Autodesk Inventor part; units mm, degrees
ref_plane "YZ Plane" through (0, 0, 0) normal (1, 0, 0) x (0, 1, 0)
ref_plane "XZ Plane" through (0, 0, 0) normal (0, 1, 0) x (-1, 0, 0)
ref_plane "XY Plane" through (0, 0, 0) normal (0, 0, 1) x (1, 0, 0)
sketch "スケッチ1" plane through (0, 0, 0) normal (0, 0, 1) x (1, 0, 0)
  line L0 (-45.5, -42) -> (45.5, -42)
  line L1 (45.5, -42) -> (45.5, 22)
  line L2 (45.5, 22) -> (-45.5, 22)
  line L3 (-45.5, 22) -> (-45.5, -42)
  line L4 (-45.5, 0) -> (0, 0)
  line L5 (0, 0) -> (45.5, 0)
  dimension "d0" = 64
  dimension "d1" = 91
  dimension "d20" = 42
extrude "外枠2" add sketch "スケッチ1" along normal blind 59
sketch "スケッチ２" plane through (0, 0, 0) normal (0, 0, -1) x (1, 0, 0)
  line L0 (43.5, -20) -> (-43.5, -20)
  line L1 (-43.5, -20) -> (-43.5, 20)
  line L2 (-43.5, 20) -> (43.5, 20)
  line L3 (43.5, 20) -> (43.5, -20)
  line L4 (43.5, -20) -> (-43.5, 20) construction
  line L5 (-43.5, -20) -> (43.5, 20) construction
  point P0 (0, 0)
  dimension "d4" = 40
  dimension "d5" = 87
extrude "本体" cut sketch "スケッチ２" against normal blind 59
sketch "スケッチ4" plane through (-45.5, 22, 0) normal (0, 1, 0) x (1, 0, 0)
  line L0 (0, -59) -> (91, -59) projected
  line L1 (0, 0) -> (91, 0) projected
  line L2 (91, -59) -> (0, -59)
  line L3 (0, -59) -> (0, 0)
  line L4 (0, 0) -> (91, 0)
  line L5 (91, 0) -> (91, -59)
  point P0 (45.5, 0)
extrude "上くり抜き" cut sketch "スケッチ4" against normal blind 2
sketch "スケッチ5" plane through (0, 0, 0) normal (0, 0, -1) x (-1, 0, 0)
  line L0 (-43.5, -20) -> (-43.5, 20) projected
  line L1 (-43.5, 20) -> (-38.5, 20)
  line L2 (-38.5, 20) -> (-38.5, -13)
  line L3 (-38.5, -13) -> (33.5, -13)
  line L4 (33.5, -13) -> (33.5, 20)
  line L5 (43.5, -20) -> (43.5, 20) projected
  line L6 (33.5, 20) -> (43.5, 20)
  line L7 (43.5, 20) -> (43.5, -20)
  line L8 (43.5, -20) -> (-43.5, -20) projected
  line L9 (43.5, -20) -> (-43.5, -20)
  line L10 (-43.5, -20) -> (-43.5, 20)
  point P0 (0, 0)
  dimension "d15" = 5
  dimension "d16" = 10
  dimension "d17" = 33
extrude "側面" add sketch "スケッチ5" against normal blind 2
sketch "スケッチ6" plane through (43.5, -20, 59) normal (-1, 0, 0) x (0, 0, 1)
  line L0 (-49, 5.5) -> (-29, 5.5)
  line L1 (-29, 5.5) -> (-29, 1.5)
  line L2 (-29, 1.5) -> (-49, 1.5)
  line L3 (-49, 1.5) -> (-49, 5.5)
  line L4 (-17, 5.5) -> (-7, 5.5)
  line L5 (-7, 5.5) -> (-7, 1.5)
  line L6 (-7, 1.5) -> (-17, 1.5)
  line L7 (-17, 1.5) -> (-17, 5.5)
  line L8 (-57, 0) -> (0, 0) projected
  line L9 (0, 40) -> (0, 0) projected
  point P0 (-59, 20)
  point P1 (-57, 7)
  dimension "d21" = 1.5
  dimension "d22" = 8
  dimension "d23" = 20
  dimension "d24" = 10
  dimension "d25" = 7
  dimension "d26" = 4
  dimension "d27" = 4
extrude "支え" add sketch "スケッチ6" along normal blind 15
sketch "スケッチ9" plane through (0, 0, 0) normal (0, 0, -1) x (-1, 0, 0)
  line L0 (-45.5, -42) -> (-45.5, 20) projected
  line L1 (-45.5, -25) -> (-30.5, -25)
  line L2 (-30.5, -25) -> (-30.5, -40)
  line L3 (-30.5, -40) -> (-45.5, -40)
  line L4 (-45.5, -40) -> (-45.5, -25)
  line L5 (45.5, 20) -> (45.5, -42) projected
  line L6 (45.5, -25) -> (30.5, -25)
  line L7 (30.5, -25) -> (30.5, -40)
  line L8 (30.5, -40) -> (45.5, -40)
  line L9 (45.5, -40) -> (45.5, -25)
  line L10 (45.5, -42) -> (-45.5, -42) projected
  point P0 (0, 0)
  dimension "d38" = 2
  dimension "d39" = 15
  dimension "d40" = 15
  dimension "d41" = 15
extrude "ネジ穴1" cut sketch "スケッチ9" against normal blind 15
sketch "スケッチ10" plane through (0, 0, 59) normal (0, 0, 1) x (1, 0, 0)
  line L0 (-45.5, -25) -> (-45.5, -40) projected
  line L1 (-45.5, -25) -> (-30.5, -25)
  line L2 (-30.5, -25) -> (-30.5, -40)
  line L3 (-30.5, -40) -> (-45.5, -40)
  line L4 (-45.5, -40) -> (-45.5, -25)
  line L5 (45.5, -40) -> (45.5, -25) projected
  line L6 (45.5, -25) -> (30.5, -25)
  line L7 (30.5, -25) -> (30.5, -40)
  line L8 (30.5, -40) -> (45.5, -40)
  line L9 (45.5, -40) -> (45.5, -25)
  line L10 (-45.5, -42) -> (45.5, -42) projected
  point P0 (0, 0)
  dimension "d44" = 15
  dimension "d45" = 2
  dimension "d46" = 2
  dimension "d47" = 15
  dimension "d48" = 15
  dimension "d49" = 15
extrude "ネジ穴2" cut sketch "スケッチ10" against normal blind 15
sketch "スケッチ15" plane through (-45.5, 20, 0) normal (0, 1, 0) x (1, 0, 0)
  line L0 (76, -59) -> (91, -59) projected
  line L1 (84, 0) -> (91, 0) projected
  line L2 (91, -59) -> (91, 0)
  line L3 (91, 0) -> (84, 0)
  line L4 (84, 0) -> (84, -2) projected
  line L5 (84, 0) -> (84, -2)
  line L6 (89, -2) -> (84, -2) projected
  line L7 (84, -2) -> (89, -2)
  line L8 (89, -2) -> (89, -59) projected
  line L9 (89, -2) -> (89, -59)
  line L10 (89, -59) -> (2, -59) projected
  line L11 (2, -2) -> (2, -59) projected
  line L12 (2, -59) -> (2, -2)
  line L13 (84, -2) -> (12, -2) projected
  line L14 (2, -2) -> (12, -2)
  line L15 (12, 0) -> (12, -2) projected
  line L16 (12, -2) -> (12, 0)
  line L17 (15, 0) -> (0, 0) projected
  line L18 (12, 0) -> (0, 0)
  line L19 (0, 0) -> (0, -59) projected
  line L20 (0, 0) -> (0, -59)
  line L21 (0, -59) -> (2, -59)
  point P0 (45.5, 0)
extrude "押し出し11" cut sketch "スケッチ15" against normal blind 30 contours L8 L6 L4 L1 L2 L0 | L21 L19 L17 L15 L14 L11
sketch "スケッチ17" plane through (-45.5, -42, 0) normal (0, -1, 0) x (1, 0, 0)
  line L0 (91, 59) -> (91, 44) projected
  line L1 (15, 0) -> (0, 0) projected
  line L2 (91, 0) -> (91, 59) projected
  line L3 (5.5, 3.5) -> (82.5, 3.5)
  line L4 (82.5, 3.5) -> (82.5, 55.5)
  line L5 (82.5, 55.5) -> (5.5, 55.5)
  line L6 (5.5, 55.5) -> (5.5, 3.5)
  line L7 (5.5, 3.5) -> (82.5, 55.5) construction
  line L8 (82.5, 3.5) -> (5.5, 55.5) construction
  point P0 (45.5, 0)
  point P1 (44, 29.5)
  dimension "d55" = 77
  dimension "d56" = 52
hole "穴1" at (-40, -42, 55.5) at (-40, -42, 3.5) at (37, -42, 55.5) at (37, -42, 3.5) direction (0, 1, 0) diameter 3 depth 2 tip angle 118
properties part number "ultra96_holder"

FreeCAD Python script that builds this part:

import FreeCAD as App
import Part
import Sketcher
from FreeCAD import Vector
Q = App.Units.Quantity

doc = App.newDocument("Part")
params = doc.addObject("Spreadsheet::Sheet", "Params")
for row, (alias, value) in enumerate([
    ("sketch1_width", "91 mm"),
    ("sketch1_height", "64 mm"),
    ("pad1_length", "59 mm"),
    ("sketch2_width", "87 mm"),
    ("sketch2_height", "40 mm"),
    ("pocket1_length", "59 mm"),
    ("sketch3_width", "91 mm"),
    ("sketch3_height", "59 mm"),
    ("pocket2_length", "2 mm"),
    ("sketch4_width", "10 mm"),
    ("sketch4_width2", "5 mm"),
    ("sketch4_height", "33 mm"),
    ("sketch4_width3", "87 mm"),
    ("sketch4_height2", "40 mm"),
    ("pad2_length", "2 mm"),
    ("sketch5_width", "4 mm"),
    ("sketch5_height", "20 mm"),
    ("sketch5_height2", "10 mm"),
    ("pad3_length", "15 mm"),
    ("sketch6_width", "15 mm"),
    ("pocket3_length", "15 mm"),
    ("sketch7_width", "15 mm"),
    ("pocket4_length", "15 mm"),
    ("sketch8_width", "2 mm"),
    ("sketch8_width2", "7 mm"),
    ("sketch8_width3", "10 mm"),
    ("sketch8_height", "57 mm"),
    ("pocket5_length", "30 mm"),
    ("sketch9_diameter", "3 mm"),
    ("hole_diameter", "3 mm"),
    ("hole_depth", "2 mm"),
], start=1):
    params.set(f"A{row}", alias)
    params.set(f"B{row}", "=" + value)
    params.setAlias(f"B{row}", alias)

body = doc.addObject("PartDesign::Body", "Body")

# Sketch on XY plane
sketch1 = body.newObject("Sketcher::SketchObject", "Sketch")
sketch1.AttachmentSupport = (doc.getObject("XY_Plane"), [""])
sketch1.MapMode = "FlatFace"
sketch1.addGeometry([
    Part.LineSegment(Vector(-46, -42, 0), Vector(46, -42, 0)),
    Part.LineSegment(Vector(46, -42, 0), Vector(46, 22, 0)),
    Part.LineSegment(Vector(46, 22, 0), Vector(-46, 22, 0)),
    Part.LineSegment(Vector(-46, 22, 0), Vector(-46, -42, 0)),
], False)
sketch1.addConstraint([
    Sketcher.Constraint("Coincident", 0, 2, 1, 1),
    Sketcher.Constraint("Coincident", 1, 2, 2, 1),
    Sketcher.Constraint("Coincident", 2, 2, 3, 1),
    Sketcher.Constraint("Coincident", 3, 2, 0, 1),
    Sketcher.Constraint("Horizontal", 0),
    Sketcher.Constraint("Vertical", 1),
    Sketcher.Constraint("Horizontal", 2),
    Sketcher.Constraint("Vertical", 3),
    Sketcher.Constraint("DistanceX", 0, 1, 0, 2, Q("91 mm")),
    Sketcher.Constraint("DistanceY", 1, 1, 1, 2, Q("64 mm")),
    Sketcher.Constraint("DistanceY", 0, 2, -1, 1, Q("42 mm")),
    Sketcher.Constraint("DistanceX", -1, 1, 0, 2, Q("45.5 mm")),
])
sketch1.setExpression("Constraints[8]", "Params.sketch1_width")
sketch1.setExpression("Constraints[9]", "Params.sketch1_height")
pad1 = body.newObject("PartDesign::Pad", "Pad")
pad1.Profile = sketch1
pad1.setExpression("Length", "Params.pad1_length")

# Sketch on XY plane
sketch2 = body.newObject("Sketcher::SketchObject", "Sketch001")
sketch2.AttachmentSupport = (doc.getObject("XY_Plane"), [""])
sketch2.MapMode = "FlatFace"
sketch2.addGeometry([
    Part.LineSegment(Vector(-44, 20, 0), Vector(44, 20, 0)),
    Part.LineSegment(Vector(44, 20, 0), Vector(44, -20, 0)),
    Part.LineSegment(Vector(44, -20, 0), Vector(-44, -20, 0)),
    Part.LineSegment(Vector(-44, -20, 0), Vector(-44, 20, 0)),
], False)
sketch2.addConstraint([
    Sketcher.Constraint("Coincident", 0, 2, 1, 1),
    Sketcher.Constraint("Coincident", 1, 2, 2, 1),
    Sketcher.Constraint("Coincident", 2, 2, 3, 1),
    Sketcher.Constraint("Coincident", 3, 2, 0, 1),
    Sketcher.Constraint("Horizontal", 0),
    Sketcher.Constraint("Vertical", 1),
    Sketcher.Constraint("Horizontal", 2),
    Sketcher.Constraint("Vertical", 3),
    Sketcher.Constraint("Symmetric", 0, 2, 2, 2, -1, 1),
    Sketcher.Constraint("DistanceX", 0, 1, 0, 2, Q("87 mm")),
    Sketcher.Constraint("DistanceY", 1, 2, 1, 1, Q("40 mm")),
])
sketch2.setExpression("Constraints[9]", "Params.sketch2_width")
sketch2.setExpression("Constraints[10]", "Params.sketch2_height")
pocket1 = body.newObject("PartDesign::Pocket", "Pocket")
pocket1.Profile = sketch2
pocket1.setExpression("Length", "Params.pocket1_length")
pocket1.Reversed = True

# Sketch on XZ plane
sketch3 = body.newObject("Sketcher::SketchObject", "Sketch002")
sketch3.AttachmentSupport = (doc.getObject("XZ_Plane"), [""])
sketch3.MapMode = "FlatFace"
sketch3.AttachmentOffset = App.Placement(Vector(0, 0, -22), App.Rotation())
sketch3.addGeometry([
    Part.LineSegment(Vector(-46, 0, 0), Vector(-46, 59, 0)),
    Part.LineSegment(Vector(-46, 59, 0), Vector(46, 59, 0)),
    Part.LineSegment(Vector(46, 59, 0), Vector(46, 0, 0)),
    Part.LineSegment(Vector(46, 0, 0), Vector(-46, 0, 0)),
], False)
sketch3.addConstraint([
    Sketcher.Constraint("Coincident", 0, 2, 1, 1),
    Sketcher.Constraint("Coincident", 1, 2, 2, 1),
    Sketcher.Constraint("Coincident", 2, 2, 3, 1),
    Sketcher.Constraint("Coincident", 3, 2, 0, 1),
    Sketcher.Constraint("Vertical", 0),
    Sketcher.Constraint("Horizontal", 1),
    Sketcher.Constraint("Vertical", 2),
    Sketcher.Constraint("Horizontal", 3),
    Sketcher.Constraint("Symmetric", 2, 2, 3, 2, -1, 1),
    Sketcher.Constraint("DistanceX", 1, 1, 1, 2, Q("91 mm")),
    Sketcher.Constraint("DistanceY", 0, 1, 0, 2, Q("59 mm")),
])
sketch3.setExpression("Constraints[9]", "Params.sketch3_width")
sketch3.setExpression("Constraints[10]", "Params.sketch3_height")
pocket2 = body.newObject("PartDesign::Pocket", "Pocket001")
pocket2.Profile = sketch3
pocket2.setExpression("Length", "Params.pocket2_length")
pocket2.Reversed = True

# Sketch on XY plane
sketch4 = body.newObject("Sketcher::SketchObject", "Sketch003")
sketch4.AttachmentSupport = (doc.getObject("XY_Plane"), [""])
sketch4.MapMode = "FlatFace"
sketch4.addGeometry([
    Part.LineSegment(Vector(44, 20, 0), Vector(44, -20, 0)),  # 0
    Part.LineSegment(Vector(44, -20, 0), Vector(-44, -20, 0)),  # 1
    Part.LineSegment(Vector(-44, -20, 0), Vector(-44, 20, 0)),  # 2
    Part.LineSegment(Vector(-44, 20, 0), Vector(-34, 20, 0)),  # 3
    Part.LineSegment(Vector(-34, 20, 0), Vector(-34, -13, 0)),  # 4
    Part.LineSegment(Vector(-34, -13, 0), Vector(38, -13, 0)),  # 5
    Part.LineSegment(Vector(38, -13, 0), Vector(38, 20, 0)),  # 6
    Part.LineSegment(Vector(38, 20, 0), Vector(44, 20, 0)),  # 7
], False)
sketch4.addConstraint([
    Sketcher.Constraint("Coincident", 0, 2, 1, 1),
    Sketcher.Constraint("Coincident", 1, 2, 2, 1),
    Sketcher.Constraint("Coincident", 2, 2, 3, 1),
    Sketcher.Constraint("Coincident", 3, 2, 4, 1),
    Sketcher.Constraint("Coincident", 4, 2, 5, 1),
    Sketcher.Constraint("Coincident", 5, 2, 6, 1),
    Sketcher.Constraint("Coincident", 6, 2, 7, 1),
    Sketcher.Constraint("Coincident", 7, 2, 0, 1),
    Sketcher.Constraint("Vertical", 0),
    Sketcher.Constraint("Horizontal", 1),
    Sketcher.Constraint("Vertical", 2),
    Sketcher.Constraint("Horizontal", 3),
    Sketcher.Constraint("Vertical", 4),
    Sketcher.Constraint("Horizontal", 5),
    Sketcher.Constraint("Vertical", 6),
    Sketcher.Constraint("Horizontal", 7),
    Sketcher.Constraint("Symmetric", 0, 2, 2, 2, -1, 1),
    Sketcher.Constraint("Horizontal", 3, 2, 6, 2),
    Sketcher.Constraint("DistanceX", 3, 1, 3, 2, Q("10 mm")),
    Sketcher.Constraint("DistanceX", 7, 1, 7, 2, Q("5 mm")),
    Sketcher.Constraint("DistanceY", 4, 2, 4, 1, Q("33 mm")),
    Sketcher.Constraint("DistanceX", 1, 2, 1, 1, Q("87 mm")),
    Sketcher.Constraint("DistanceY", 0, 2, 0, 1, Q("40 mm")),
])
sketch4.setExpression("Constraints[18]", "Params.sketch4_width")
sketch4.setExpression("Constraints[19]", "Params.sketch4_width2")
sketch4.setExpression("Constraints[20]", "Params.sketch4_height")
sketch4.setExpression("Constraints[21]", "Params.sketch4_width3")
sketch4.setExpression("Constraints[22]", "Params.sketch4_height2")
pad2 = body.newObject("PartDesign::Pad", "Pad001")
pad2.Profile = sketch4
pad2.setExpression("Length", "Params.pad2_length")

# Sketch on YZ plane
sketch5 = body.newObject("Sketcher::SketchObject", "Sketch004")
sketch5.AttachmentSupport = (doc.getObject("YZ_Plane"), [""])
sketch5.MapMode = "FlatFace"
sketch5.AttachmentOffset = App.Placement(Vector(0, 0, 43.5), App.Rotation())
sketch5.addGeometry([
    Part.LineSegment(Vector(-14.5, 30, 0), Vector(-14.5, 10, 0)),  # 0
    Part.LineSegment(Vector(-14.5, 10, 0), Vector(-18.5, 10, 0)),  # 1
    Part.LineSegment(Vector(-18.5, 10, 0), Vector(-18.5, 30, 0)),  # 2
    Part.LineSegment(Vector(-18.5, 30, 0), Vector(-14.5, 30, 0)),  # 3
    Part.LineSegment(Vector(-14.5, 52, 0), Vector(-14.5, 42, 0)),  # 4
    Part.LineSegment(Vector(-14.5, 42, 0), Vector(-18.5, 42, 0)),  # 5
    Part.LineSegment(Vector(-18.5, 42, 0), Vector(-18.5, 52, 0)),  # 6
    Part.LineSegment(Vector(-18.5, 52, 0), Vector(-14.5, 52, 0)),  # 7
], False)
sketch5.addConstraint([
    Sketcher.Constraint("Coincident", 0, 2, 1, 1),
    Sketcher.Constraint("Coincident", 1, 2, 2, 1),
    Sketcher.Constraint("Coincident", 2, 2, 3, 1),
    Sketcher.Constraint("Coincident", 3, 2, 0, 1),
    Sketcher.Constraint("Coincident", 4, 2, 5, 1),
    Sketcher.Constraint("Coincident", 5, 2, 6, 1),
    Sketcher.Constraint("Coincident", 6, 2, 7, 1),
    Sketcher.Constraint("Coincident", 7, 2, 4, 1),
    Sketcher.Constraint("Vertical", 0),
    Sketcher.Constraint("Horizontal", 1),
    Sketcher.Constraint("Vertical", 2),
    Sketcher.Constraint("Horizontal", 3),
    Sketcher.Constraint("Vertical", 4),
    Sketcher.Constraint("Horizontal", 5),
    Sketcher.Constraint("Vertical", 6),
    Sketcher.Constraint("Horizontal", 7),
    Sketcher.Constraint("Vertical", 3, 2, 4, 2),
    Sketcher.Constraint("Vertical", 2, 2, 5, 2),
    Sketcher.Constraint("DistanceX", 1, 2, 1, 1, Q("4 mm")),
    Sketcher.Constraint("DistanceY", 0, 2, 0, 1, Q("20 mm")),
    Sketcher.Constraint("DistanceY", 4, 2, 4, 1, Q("10 mm")),
    Sketcher.Constraint("DistanceY", -1, 1, 0, 2, Q("10 mm")),
    Sketcher.Constraint("DistanceY", -1, 1, 4, 2, Q("42 mm")),
    Sketcher.Constraint("DistanceX", 0, 2, -1, 1, Q("14.5 mm")),
])
sketch5.setExpression("Constraints[18]", "Params.sketch5_width")
sketch5.setExpression("Constraints[19]", "Params.sketch5_height")
sketch5.setExpression("Constraints[20]", "Params.sketch5_height2")
pad3 = body.newObject("PartDesign::Pad", "Pad002")
pad3.Profile = sketch5
pad3.setExpression("Length", "Params.pad3_length")
pad3.Reversed = True

# Sketch on XY plane
sketch6 = body.newObject("Sketcher::SketchObject", "Sketch005")
sketch6.AttachmentSupport = (doc.getObject("XY_Plane"), [""])
sketch6.MapMode = "FlatFace"
sketch6.addGeometry([
    Part.LineSegment(Vector(46, -25, 0), Vector(46, -40, 0)),  # 0
    Part.LineSegment(Vector(46, -40, 0), Vector(30, -40, 0)),  # 1
    Part.LineSegment(Vector(30, -40, 0), Vector(30, -25, 0)),  # 2
    Part.LineSegment(Vector(30, -25, 0), Vector(46, -25, 0)),  # 3
    Part.LineSegment(Vector(-30, -40, 0), Vector(-46, -40, 0)),  # 4
    Part.LineSegment(Vector(-46, -40, 0), Vector(-46, -25, 0)),  # 5
    Part.LineSegment(Vector(-46, -25, 0), Vector(-30, -25, 0)),  # 6
    Part.LineSegment(Vector(-30, -25, 0), Vector(-30, -40, 0)),  # 7
], False)
sketch6.addConstraint([
    Sketcher.Constraint("Coincident", 0, 2, 1, 1),
    Sketcher.Constraint("Coincident", 1, 2, 2, 1),
    Sketcher.Constraint("Coincident", 2, 2, 3, 1),
    Sketcher.Constraint("Coincident", 3, 2, 0, 1),
    Sketcher.Constraint("Coincident", 4, 2, 5, 1),
    Sketcher.Constraint("Coincident", 5, 2, 6, 1),
    Sketcher.Constraint("Coincident", 6, 2, 7, 1),
    Sketcher.Constraint("Coincident", 7, 2, 4, 1),
    Sketcher.Constraint("Vertical", 0),
    Sketcher.Constraint("Horizontal", 1),
    Sketcher.Constraint("Vertical", 2),
    Sketcher.Constraint("Horizontal", 3),
    Sketcher.Constraint("Horizontal", 4),
    Sketcher.Constraint("Vertical", 5),
    Sketcher.Constraint("Horizontal", 6),
    Sketcher.Constraint("Vertical", 7),
    Sketcher.Constraint("Symmetric", 0, 2, 4, 2, -2),
    Sketcher.Constraint("Symmetric", 2, 2, 6, 2, -2),
    Sketcher.Constraint("Equal", 6, 0),
    Sketcher.Constraint("DistanceX", 1, 2, 1, 1, Q("15 mm")),
    Sketcher.Constraint("DistanceY", 0, 2, -1, 1, Q("40 mm")),
    Sketcher.Constraint("DistanceX", 4, 2, 1, 2, Q("76 mm")),
])
sketch6.setExpression("Constraints[19]", "Params.sketch6_width")
pocket3 = body.newObject("PartDesign::Pocket", "Pocket002")
pocket3.Profile = sketch6
pocket3.setExpression("Length", "Params.pocket3_length")
pocket3.Reversed = True

# Sketch on XY plane
sketch7 = body.newObject("Sketcher::SketchObject", "Sketch006")
sketch7.AttachmentSupport = (doc.getObject("XY_Plane"), [""])
sketch7.MapMode = "FlatFace"
sketch7.AttachmentOffset = App.Placement(Vector(0, 0, 59), App.Rotation())
sketch7.addGeometry([
    Part.LineSegment(Vector(-30, -25, 0), Vector(-46, -25, 0)),  # 0
    Part.LineSegment(Vector(-46, -25, 0), Vector(-46, -40, 0)),  # 1
    Part.LineSegment(Vector(-46, -40, 0), Vector(-30, -40, 0)),  # 2
    Part.LineSegment(Vector(-30, -40, 0), Vector(-30, -25, 0)),  # 3
    Part.LineSegment(Vector(30, -40, 0), Vector(46, -40, 0)),  # 4
    Part.LineSegment(Vector(46, -40, 0), Vector(46, -25, 0)),  # 5
    Part.LineSegment(Vector(46, -25, 0), Vector(30, -25, 0)),  # 6
    Part.LineSegment(Vector(30, -25, 0), Vector(30, -40, 0)),  # 7
], False)
sketch7.addConstraint([
    Sketcher.Constraint("Coincident", 0, 2, 1, 1),
    Sketcher.Constraint("Coincident", 1, 2, 2, 1),
    Sketcher.Constraint("Coincident", 2, 2, 3, 1),
    Sketcher.Constraint("Coincident", 3, 2, 0, 1),
    Sketcher.Constraint("Coincident", 4, 2, 5, 1),
    Sketcher.Constraint("Coincident", 5, 2, 6, 1),
    Sketcher.Constraint("Coincident", 6, 2, 7, 1),
    Sketcher.Constraint("Coincident", 7, 2, 4, 1),
    Sketcher.Constraint("Horizontal", 0),
    Sketcher.Constraint("Vertical", 1),
    Sketcher.Constraint("Horizontal", 2),
    Sketcher.Constraint("Vertical", 3),
    Sketcher.Constraint("Horizontal", 4),
    Sketcher.Constraint("Vertical", 5),
    Sketcher.Constraint("Horizontal", 6),
    Sketcher.Constraint("Vertical", 7),
    Sketcher.Constraint("Symmetric", 1, 2, 4, 2, -2),
    Sketcher.Constraint("Symmetric", 3, 2, 6, 2, -2),
    Sketcher.Constraint("Equal", 6, 1),
    Sketcher.Constraint("DistanceX", 0, 2, 0, 1, Q("15 mm")),
    Sketcher.Constraint("DistanceY", 0, 2, -1, 1, Q("25 mm")),
    Sketcher.Constraint("DistanceX", 2, 2, 4, 2, Q("76 mm")),
])
sketch7.setExpression("Constraints[19]", "Params.sketch7_width")
pocket4 = body.newObject("PartDesign::Pocket", "Pocket003")
pocket4.Profile = sketch7
pocket4.setExpression("Length", "Params.pocket4_length")

# Sketch on XZ plane
sketch8 = body.newObject("Sketcher::SketchObject", "Sketch007")
sketch8.AttachmentSupport = (doc.getObject("XZ_Plane"), [""])
sketch8.MapMode = "FlatFace"
sketch8.AttachmentOffset = App.Placement(Vector(0, 0, -20), App.Rotation())
sketch8.addGeometry([
    Part.LineSegment(Vector(43.5, 2, 0), Vector(43.5, 59, 0)),  # 0
    Part.LineSegment(Vector(43.5, 59, 0), Vector(45.5, 59, 0)),  # 1
    Part.LineSegment(Vector(45.5, 59, 0), Vector(45.5, 0, 0)),  # 2
    Part.LineSegment(Vector(45.5, 0, 0), Vector(38.5, 0, 0)),  # 3
    Part.LineSegment(Vector(38.5, 0, 0), Vector(38.5, 2, 0)),  # 4
    Part.LineSegment(Vector(38.5, 2, 0), Vector(43.5, 2, 0)),  # 5
    Part.LineSegment(Vector(-45.5, 59, 0), Vector(-43.5, 59, 0)),  # 6
    Part.LineSegment(Vector(-43.5, 59, 0), Vector(-43.5, 2, 0)),  # 7
    Part.LineSegment(Vector(-43.5, 2, 0), Vector(-33.5, 2, 0)),  # 8
    Part.LineSegment(Vector(-33.5, 2, 0), Vector(-33.5, 0, 0)),  # 9
    Part.LineSegment(Vector(-33.5, 0, 0), Vector(-45.5, 0, 0)),  # 10
    Part.LineSegment(Vector(-45.5, 0, 0), Vector(-45.5, 59, 0)),  # 11
], False)
sketch8.addConstraint([
    Sketcher.Constraint("Coincident", 0, 2, 1, 1),
    Sketcher.Constraint("Coincident", 1, 2, 2, 1),
    Sketcher.Constraint("Coincident", 2, 2, 3, 1),
    Sketcher.Constraint("Coincident", 3, 2, 4, 1),
    Sketcher.Constraint("Coincident", 4, 2, 5, 1),
    Sketcher.Constraint("Coincident", 5, 2, 0, 1),
    Sketcher.Constraint("Coincident", 6, 2, 7, 1),
    Sketcher.Constraint("Coincident", 7, 2, 8, 1),
    Sketcher.Constraint("Coincident", 8, 2, 9, 1),
    Sketcher.Constraint("Coincident", 9, 2, 10, 1),
    Sketcher.Constraint("Coincident", 10, 2, 11, 1),
    Sketcher.Constraint("Coincident", 11, 2, 6, 1),
    Sketcher.Constraint("Vertical", 0),
    Sketcher.Constraint("Horizontal", 1),
    Sketcher.Constraint("Vertical", 2),
    Sketcher.Constraint("Horizontal", 3),
    Sketcher.Constraint("Vertical", 4),
    Sketcher.Constraint("Horizontal", 5),
    Sketcher.Constraint("Horizontal", 6),
    Sketcher.Constraint("Vertical", 7),
    Sketcher.Constraint("Horizontal", 8),
    Sketcher.Constraint("Vertical", 9),
    Sketcher.Constraint("Horizontal", 10),
    Sketcher.Constraint("Vertical", 11),
    Sketcher.Constraint("Symmetric", 2, 2, 10, 2, -1, 1),
    Sketcher.Constraint("Symmetric", 0, 2, 6, 2, -2),
    Sketcher.Constraint("PointOnObject", 2, 2, -1),
    Sketcher.Constraint("Horizontal", 5, 2, 7, 2),
    Sketcher.Constraint("Equal", 6, 4),
    Sketcher.Constraint("DistanceX", 1, 1, 1, 2, Q("2 mm")),
    Sketcher.Constraint("DistanceX", 3, 2, 3, 1, Q("7 mm")),
    Sketcher.Constraint("DistanceX", 8, 1, 8, 2, Q("10 mm")),
    Sketcher.Constraint("DistanceY", 0, 1, 0, 2, Q("57 mm")),
    Sketcher.Constraint("DistanceX", 6, 2, 0, 2, Q("87 mm")),
])
sketch8.setExpression("Constraints[29]", "Params.sketch8_width")
sketch8.setExpression("Constraints[30]", "Params.sketch8_width2")
sketch8.setExpression("Constraints[31]", "Params.sketch8_width3")
sketch8.setExpression("Constraints[32]", "Params.sketch8_height")
pocket5 = body.newObject("PartDesign::Pocket", "Pocket004")
pocket5.Profile = sketch8
pocket5.setExpression("Length", "Params.pocket5_length")
pocket5.Reversed = True

# Sketch on XZ plane
sketch9 = body.newObject("Sketcher::SketchObject", "Sketch008")
sketch9.AttachmentSupport = (doc.getObject("XZ_Plane"), [""])
sketch9.MapMode = "FlatFace"
sketch9.AttachmentOffset = App.Placement(Vector(0, 0, 42), App.Rotation())
sketch9.addGeometry([
    Part.Circle(Vector(-40, 55.5, 0), Vector(0, 0, 1), 1.5),
    Part.Circle(Vector(-40, 3.5, 0), Vector(0, 0, 1), 1.5),
    Part.Circle(Vector(37, 55.5, 0), Vector(0, 0, 1), 1.5),
    Part.Circle(Vector(37, 3.5, 0), Vector(0, 0, 1), 1.5),
], False)
sketch9.addConstraint([
    Sketcher.Constraint("Equal", 0, 1),
    Sketcher.Constraint("Equal", 1, 2),
    Sketcher.Constraint("Equal", 2, 3),
    Sketcher.Constraint("Horizontal", 0, 3, 2, 3),
    Sketcher.Constraint("Horizontal", 1, 3, 3, 3),
    Sketcher.Constraint("Vertical", 0, 3, 1, 3),
    Sketcher.Constraint("Vertical", 2, 3, 3, 3),
    Sketcher.Constraint("Diameter", 0, Q("3 mm")),
    Sketcher.Constraint("DistanceX", 0, 3, -1, 1, Q("40 mm")),
    Sketcher.Constraint("DistanceX", -1, 1, 2, 3, Q("37 mm")),
    Sketcher.Constraint("DistanceY", 1, 3, 0, 3, Q("52 mm")),
    Sketcher.Constraint("DistanceY", -1, 1, 0, 3, Q("55.5 mm")),
])
sketch9.setExpression("Constraints[7]", "Params.sketch9_diameter")
doc.recompute()
hole = body.newObject("PartDesign::Hole", "Hole")
hole.Profile = sketch9
hole.ThreadType = "None"
hole.setExpression("Diameter", "Params.hole_diameter")
hole.DepthType = "Dimension"
hole.setExpression("Depth", "Params.hole_depth")
hole.DrillPoint = "Angled"
hole.DrillPointAngle = 118

doc.recompute()
